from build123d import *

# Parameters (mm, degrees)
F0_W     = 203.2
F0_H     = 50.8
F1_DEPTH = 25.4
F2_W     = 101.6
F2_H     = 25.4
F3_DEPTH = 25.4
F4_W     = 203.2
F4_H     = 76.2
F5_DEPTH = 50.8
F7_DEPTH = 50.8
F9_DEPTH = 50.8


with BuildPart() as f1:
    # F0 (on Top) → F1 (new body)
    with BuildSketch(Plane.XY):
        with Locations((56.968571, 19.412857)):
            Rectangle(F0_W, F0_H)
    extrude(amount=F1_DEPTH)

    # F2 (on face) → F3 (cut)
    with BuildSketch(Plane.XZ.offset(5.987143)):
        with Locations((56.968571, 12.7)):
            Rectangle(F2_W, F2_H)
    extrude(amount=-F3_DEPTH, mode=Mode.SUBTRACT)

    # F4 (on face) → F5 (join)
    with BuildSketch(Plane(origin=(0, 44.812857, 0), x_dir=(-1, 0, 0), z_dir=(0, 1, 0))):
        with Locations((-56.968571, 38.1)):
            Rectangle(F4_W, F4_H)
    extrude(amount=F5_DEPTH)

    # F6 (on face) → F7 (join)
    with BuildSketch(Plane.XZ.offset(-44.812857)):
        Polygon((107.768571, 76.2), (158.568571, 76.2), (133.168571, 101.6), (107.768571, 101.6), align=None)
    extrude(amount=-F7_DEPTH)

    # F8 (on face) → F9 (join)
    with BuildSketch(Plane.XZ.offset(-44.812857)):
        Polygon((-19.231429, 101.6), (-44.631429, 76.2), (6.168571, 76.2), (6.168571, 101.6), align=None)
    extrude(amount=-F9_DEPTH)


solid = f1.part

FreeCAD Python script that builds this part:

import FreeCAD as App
import Part
import Sketcher
Q = App.Units.Quantity

doc = App.newDocument("Part")
body = doc.addObject("PartDesign::Body", "Body")

# Sketch on XY plane
sketch1 = body.newObject("Sketcher::SketchObject", "Sketch")
sketch1.AttachmentSupport = (doc.getObject("XY_Plane"), [""])
sketch1.MapMode = "FlatFace"
sketch1.addGeometry([
    Part.LineSegment(App.Vector(-44.631429, 44.812857, 0), App.Vector(-44.631429, -5.987143, 0)),
    Part.LineSegment(App.Vector(-44.631429, -5.987143, 0), App.Vector(158.568571, -5.987143, 0)),
    Part.LineSegment(App.Vector(158.568571, -5.987143, 0), App.Vector(158.568571, 44.812857, 0)),
    Part.LineSegment(App.Vector(158.568571, 44.812857, 0), App.Vector(-44.631429, 44.812857, 0)),
], False)
sketch1.addConstraint([
    Sketcher.Constraint("Coincident", 0, 2, 1, 1),
    Sketcher.Constraint("Coincident", 1, 2, 2, 1),
    Sketcher.Constraint("Coincident", 2, 2, 3, 1),
    Sketcher.Constraint("Coincident", 3, 2, 0, 1),
    Sketcher.Constraint("Vertical", 0),
    Sketcher.Constraint("Horizontal", 1),
    Sketcher.Constraint("Vertical", 2),
    Sketcher.Constraint("Horizontal", 3),
    Sketcher.Constraint("DistanceX", 1, 1, 1, 2, Q("8 in")),
    Sketcher.Constraint("DistanceY", 0, 2, 0, 1, Q("2 in")),
    Sketcher.Constraint("DistanceX", 0, 2, -1, 1, Q("44.631429 mm")),
    Sketcher.Constraint("DistanceY", 0, 2, -1, 1, Q("5.987143 mm")),
])
pad1 = body.newObject("PartDesign::Pad", "Pad")
pad1.Profile = sketch1
pad1.Length = Q("1 in")

# Sketch on XZ plane
sketch2 = body.newObject("Sketcher::SketchObject", "Sketch001")
sketch2.AttachmentSupport = (doc.getObject("XZ_Plane"), [""])
sketch2.MapMode = "FlatFace"
sketch2.AttachmentOffset = App.Placement(App.Vector(0, 0, 5.987143), App.Rotation())
sketch2.addGeometry([
    Part.LineSegment(App.Vector(6.168571, 25.4, 0), App.Vector(6.168571, 0, 0)),
    Part.LineSegment(App.Vector(6.168571, 0, 0), App.Vector(107.768571, 0, 0)),
    Part.LineSegment(App.Vector(107.768571, 0, 0), App.Vector(107.768571, 25.4, 0)),
    Part.LineSegment(App.Vector(107.768571, 25.4, 0), App.Vector(6.168571, 25.4, 0)),
], False)
sketch2.addConstraint([
    Sketcher.Constraint("Coincident", 0, 2, 1, 1),
    Sketcher.Constraint("Coincident", 1, 2, 2, 1),
    Sketcher.Constraint("Coincident", 2, 2, 3, 1),
    Sketcher.Constraint("Coincident", 3, 2, 0, 1),
    Sketcher.Constraint("Vertical", 0),
    Sketcher.Constraint("Horizontal", 1),
    Sketcher.Constraint("Vertical", 2),
    Sketcher.Constraint("Horizontal", 3),
    Sketcher.Constraint("PointOnObject", 0, 2, -1),
    Sketcher.Constraint("DistanceX", 1, 1, 1, 2, Q("4 in")),
    Sketcher.Constraint("DistanceY", 0, 2, 0, 1, Q("1 in")),
    Sketcher.Constraint("DistanceX", -1, 1, 0, 2, Q("6.168571 mm")),
])
pocket1 = body.newObject("PartDesign::Pocket", "Pocket")
pocket1.Profile = sketch2
pocket1.Length = Q("1 in")

# Sketch on XZ plane
sketch3 = body.newObject("Sketcher::SketchObject", "Sketch002")
sketch3.AttachmentSupport = (doc.getObject("XZ_Plane"), [""])
sketch3.MapMode = "FlatFace"
sketch3.AttachmentOffset = App.Placement(App.Vector(0, 0, -44.812857), App.Rotation())
sketch3.addGeometry([
    Part.LineSegment(App.Vector(158.568571, 76.2, 0), App.Vector(158.568571, 0, 0)),
    Part.LineSegment(App.Vector(158.568571, 0, 0), App.Vector(-44.631429, 0, 0)),
    Part.LineSegment(App.Vector(-44.631429, 0, 0), App.Vector(-44.631429, 76.2, 0)),
    Part.LineSegment(App.Vector(-44.631429, 76.2, 0), App.Vector(158.568571, 76.2, 0)),
], False)
sketch3.addConstraint([
    Sketcher.Constraint("Coincident", 0, 2, 1, 1),
    Sketcher.Constraint("Coincident", 1, 2, 2, 1),
    Sketcher.Constraint("Coincident", 2, 2, 3, 1),
    Sketcher.Constraint("Coincident", 3, 2, 0, 1),
    Sketcher.Constraint("Vertical", 0),
    Sketcher.Constraint("Horizontal", 1),
    Sketcher.Constraint("Vertical", 2),
    Sketcher.Constraint("Horizontal", 3),
    Sketcher.Constraint("PointOnObject", 0, 2, -1),
    Sketcher.Constraint("DistanceX", 1, 2, 1, 1, Q("8 in")),
    Sketcher.Constraint("DistanceY", 0, 2, 0, 1, Q("3 in")),
    Sketcher.Constraint("DistanceX", -1, 1, 0, 2, Q("158.568571 mm")),
])
pad2 = body.newObject("PartDesign::Pad", "Pad001")
pad2.Profile = sketch3
pad2.Length = Q("2 in")
pad2.Reversed = True

# Sketch on XZ plane
sketch4 = body.newObject("Sketcher::SketchObject", "Sketch003")
sketch4.AttachmentSupport = (doc.getObject("XZ_Plane"), [""])
sketch4.MapMode = "FlatFace"
sketch4.AttachmentOffset = App.Placement(App.Vector(0, 0, -44.812857), App.Rotation())
sketch4.addGeometry([
    Part.LineSegment(App.Vector(107.768571, 76.2, 0), App.Vector(158.568571, 76.2, 0)),
    Part.LineSegment(App.Vector(158.568571, 76.2, 0), App.Vector(133.168571, 101.6, 0)),
    Part.LineSegment(App.Vector(133.168571, 101.6, 0), App.Vector(107.768571, 101.6, 0)),
    Part.LineSegment(App.Vector(107.768571, 101.6, 0), App.Vector(107.768571, 76.2, 0)),
], False)
sketch4.addConstraint([
    Sketcher.Constraint("Coincident", 0, 2, 1, 1),
    Sketcher.Constraint("Coincident", 1, 2, 2, 1),
    Sketcher.Constraint("Coincident", 2, 2, 3, 1),
    Sketcher.Constraint("Coincident", 3, 2, 0, 1),
    Sketcher.Constraint("Horizontal", 0),
    Sketcher.Constraint("Horizontal", 2),
    Sketcher.Constraint("Vertical", 3),
    Sketcher.Constraint("Equal", 2, 3),
    Sketcher.Constraint("DistanceX", 0, 1, 0, 2, Q("2 in")),
    Sketcher.Constraint("DistanceX", 2, 2, 2, 1, Q("1 in")),
    Sketcher.Constraint("DistanceY", -1, 1, 0, 2, Q("3 in")),
    Sketcher.Constraint("DistanceX", -1, 1, 0, 2, Q("158.568571 mm")),
])
pad3 = body.newObject("PartDesign::Pad", "Pad002")
pad3.Profile = sketch4
pad3.Length = Q("2 in")
pad3.Reversed = True

# Sketch on XZ plane
sketch5 = body.newObject("Sketcher::SketchObject", "Sketch004")
sketch5.AttachmentSupport = (doc.getObject("XZ_Plane"), [""])
sketch5.MapMode = "FlatFace"
sketch5.AttachmentOffset = App.Placement(App.Vector(0, 0, -44.812857), App.Rotation())
sketch5.addGeometry([
    Part.LineSegment(App.Vector(-19.231429, 101.6, 0), App.Vector(-44.631429, 76.2, 0)),
    Part.LineSegment(App.Vector(-44.631429, 76.2, 0), App.Vector(6.168571, 76.2, 0)),
    Part.LineSegment(App.Vector(6.168571, 76.2, 0), App.Vector(6.168571, 101.6, 0)),
    Part.LineSegment(App.Vector(6.168571, 101.6, 0), App.Vector(-19.231429, 101.6, 0)),
], False)
sketch5.addConstraint([
    Sketcher.Constraint("Coincident", 0, 2, 1, 1),
    Sketcher.Constraint("Coincident", 1, 2, 2, 1),
    Sketcher.Constraint("Coincident", 2, 2, 3, 1),
    Sketcher.Constraint("Coincident", 3, 2, 0, 1),
    Sketcher.Constraint("Horizontal", 1),
    Sketcher.Constraint("Vertical", 2),
    Sketcher.Constraint("Horizontal", 3),
    Sketcher.Constraint("Equal", 3, 2),
    Sketcher.Constraint("DistanceX", 1, 1, 1, 2, Q("2 in")),
    Sketcher.Constraint("DistanceX", 3, 2, 3, 1, Q("1 in")),
    Sketcher.Constraint("DistanceY", -1, 1, 0, 2, Q("3 in")),
    Sketcher.Constraint("DistanceX", 0, 2, -1, 1, Q("44.631429 mm")),
])
pad4 = body.newObject("PartDesign::Pad", "Pad003")
pad4.Profile = sketch5
pad4.Length = Q("2 in")
pad4.Reversed = True

doc.recompute()
